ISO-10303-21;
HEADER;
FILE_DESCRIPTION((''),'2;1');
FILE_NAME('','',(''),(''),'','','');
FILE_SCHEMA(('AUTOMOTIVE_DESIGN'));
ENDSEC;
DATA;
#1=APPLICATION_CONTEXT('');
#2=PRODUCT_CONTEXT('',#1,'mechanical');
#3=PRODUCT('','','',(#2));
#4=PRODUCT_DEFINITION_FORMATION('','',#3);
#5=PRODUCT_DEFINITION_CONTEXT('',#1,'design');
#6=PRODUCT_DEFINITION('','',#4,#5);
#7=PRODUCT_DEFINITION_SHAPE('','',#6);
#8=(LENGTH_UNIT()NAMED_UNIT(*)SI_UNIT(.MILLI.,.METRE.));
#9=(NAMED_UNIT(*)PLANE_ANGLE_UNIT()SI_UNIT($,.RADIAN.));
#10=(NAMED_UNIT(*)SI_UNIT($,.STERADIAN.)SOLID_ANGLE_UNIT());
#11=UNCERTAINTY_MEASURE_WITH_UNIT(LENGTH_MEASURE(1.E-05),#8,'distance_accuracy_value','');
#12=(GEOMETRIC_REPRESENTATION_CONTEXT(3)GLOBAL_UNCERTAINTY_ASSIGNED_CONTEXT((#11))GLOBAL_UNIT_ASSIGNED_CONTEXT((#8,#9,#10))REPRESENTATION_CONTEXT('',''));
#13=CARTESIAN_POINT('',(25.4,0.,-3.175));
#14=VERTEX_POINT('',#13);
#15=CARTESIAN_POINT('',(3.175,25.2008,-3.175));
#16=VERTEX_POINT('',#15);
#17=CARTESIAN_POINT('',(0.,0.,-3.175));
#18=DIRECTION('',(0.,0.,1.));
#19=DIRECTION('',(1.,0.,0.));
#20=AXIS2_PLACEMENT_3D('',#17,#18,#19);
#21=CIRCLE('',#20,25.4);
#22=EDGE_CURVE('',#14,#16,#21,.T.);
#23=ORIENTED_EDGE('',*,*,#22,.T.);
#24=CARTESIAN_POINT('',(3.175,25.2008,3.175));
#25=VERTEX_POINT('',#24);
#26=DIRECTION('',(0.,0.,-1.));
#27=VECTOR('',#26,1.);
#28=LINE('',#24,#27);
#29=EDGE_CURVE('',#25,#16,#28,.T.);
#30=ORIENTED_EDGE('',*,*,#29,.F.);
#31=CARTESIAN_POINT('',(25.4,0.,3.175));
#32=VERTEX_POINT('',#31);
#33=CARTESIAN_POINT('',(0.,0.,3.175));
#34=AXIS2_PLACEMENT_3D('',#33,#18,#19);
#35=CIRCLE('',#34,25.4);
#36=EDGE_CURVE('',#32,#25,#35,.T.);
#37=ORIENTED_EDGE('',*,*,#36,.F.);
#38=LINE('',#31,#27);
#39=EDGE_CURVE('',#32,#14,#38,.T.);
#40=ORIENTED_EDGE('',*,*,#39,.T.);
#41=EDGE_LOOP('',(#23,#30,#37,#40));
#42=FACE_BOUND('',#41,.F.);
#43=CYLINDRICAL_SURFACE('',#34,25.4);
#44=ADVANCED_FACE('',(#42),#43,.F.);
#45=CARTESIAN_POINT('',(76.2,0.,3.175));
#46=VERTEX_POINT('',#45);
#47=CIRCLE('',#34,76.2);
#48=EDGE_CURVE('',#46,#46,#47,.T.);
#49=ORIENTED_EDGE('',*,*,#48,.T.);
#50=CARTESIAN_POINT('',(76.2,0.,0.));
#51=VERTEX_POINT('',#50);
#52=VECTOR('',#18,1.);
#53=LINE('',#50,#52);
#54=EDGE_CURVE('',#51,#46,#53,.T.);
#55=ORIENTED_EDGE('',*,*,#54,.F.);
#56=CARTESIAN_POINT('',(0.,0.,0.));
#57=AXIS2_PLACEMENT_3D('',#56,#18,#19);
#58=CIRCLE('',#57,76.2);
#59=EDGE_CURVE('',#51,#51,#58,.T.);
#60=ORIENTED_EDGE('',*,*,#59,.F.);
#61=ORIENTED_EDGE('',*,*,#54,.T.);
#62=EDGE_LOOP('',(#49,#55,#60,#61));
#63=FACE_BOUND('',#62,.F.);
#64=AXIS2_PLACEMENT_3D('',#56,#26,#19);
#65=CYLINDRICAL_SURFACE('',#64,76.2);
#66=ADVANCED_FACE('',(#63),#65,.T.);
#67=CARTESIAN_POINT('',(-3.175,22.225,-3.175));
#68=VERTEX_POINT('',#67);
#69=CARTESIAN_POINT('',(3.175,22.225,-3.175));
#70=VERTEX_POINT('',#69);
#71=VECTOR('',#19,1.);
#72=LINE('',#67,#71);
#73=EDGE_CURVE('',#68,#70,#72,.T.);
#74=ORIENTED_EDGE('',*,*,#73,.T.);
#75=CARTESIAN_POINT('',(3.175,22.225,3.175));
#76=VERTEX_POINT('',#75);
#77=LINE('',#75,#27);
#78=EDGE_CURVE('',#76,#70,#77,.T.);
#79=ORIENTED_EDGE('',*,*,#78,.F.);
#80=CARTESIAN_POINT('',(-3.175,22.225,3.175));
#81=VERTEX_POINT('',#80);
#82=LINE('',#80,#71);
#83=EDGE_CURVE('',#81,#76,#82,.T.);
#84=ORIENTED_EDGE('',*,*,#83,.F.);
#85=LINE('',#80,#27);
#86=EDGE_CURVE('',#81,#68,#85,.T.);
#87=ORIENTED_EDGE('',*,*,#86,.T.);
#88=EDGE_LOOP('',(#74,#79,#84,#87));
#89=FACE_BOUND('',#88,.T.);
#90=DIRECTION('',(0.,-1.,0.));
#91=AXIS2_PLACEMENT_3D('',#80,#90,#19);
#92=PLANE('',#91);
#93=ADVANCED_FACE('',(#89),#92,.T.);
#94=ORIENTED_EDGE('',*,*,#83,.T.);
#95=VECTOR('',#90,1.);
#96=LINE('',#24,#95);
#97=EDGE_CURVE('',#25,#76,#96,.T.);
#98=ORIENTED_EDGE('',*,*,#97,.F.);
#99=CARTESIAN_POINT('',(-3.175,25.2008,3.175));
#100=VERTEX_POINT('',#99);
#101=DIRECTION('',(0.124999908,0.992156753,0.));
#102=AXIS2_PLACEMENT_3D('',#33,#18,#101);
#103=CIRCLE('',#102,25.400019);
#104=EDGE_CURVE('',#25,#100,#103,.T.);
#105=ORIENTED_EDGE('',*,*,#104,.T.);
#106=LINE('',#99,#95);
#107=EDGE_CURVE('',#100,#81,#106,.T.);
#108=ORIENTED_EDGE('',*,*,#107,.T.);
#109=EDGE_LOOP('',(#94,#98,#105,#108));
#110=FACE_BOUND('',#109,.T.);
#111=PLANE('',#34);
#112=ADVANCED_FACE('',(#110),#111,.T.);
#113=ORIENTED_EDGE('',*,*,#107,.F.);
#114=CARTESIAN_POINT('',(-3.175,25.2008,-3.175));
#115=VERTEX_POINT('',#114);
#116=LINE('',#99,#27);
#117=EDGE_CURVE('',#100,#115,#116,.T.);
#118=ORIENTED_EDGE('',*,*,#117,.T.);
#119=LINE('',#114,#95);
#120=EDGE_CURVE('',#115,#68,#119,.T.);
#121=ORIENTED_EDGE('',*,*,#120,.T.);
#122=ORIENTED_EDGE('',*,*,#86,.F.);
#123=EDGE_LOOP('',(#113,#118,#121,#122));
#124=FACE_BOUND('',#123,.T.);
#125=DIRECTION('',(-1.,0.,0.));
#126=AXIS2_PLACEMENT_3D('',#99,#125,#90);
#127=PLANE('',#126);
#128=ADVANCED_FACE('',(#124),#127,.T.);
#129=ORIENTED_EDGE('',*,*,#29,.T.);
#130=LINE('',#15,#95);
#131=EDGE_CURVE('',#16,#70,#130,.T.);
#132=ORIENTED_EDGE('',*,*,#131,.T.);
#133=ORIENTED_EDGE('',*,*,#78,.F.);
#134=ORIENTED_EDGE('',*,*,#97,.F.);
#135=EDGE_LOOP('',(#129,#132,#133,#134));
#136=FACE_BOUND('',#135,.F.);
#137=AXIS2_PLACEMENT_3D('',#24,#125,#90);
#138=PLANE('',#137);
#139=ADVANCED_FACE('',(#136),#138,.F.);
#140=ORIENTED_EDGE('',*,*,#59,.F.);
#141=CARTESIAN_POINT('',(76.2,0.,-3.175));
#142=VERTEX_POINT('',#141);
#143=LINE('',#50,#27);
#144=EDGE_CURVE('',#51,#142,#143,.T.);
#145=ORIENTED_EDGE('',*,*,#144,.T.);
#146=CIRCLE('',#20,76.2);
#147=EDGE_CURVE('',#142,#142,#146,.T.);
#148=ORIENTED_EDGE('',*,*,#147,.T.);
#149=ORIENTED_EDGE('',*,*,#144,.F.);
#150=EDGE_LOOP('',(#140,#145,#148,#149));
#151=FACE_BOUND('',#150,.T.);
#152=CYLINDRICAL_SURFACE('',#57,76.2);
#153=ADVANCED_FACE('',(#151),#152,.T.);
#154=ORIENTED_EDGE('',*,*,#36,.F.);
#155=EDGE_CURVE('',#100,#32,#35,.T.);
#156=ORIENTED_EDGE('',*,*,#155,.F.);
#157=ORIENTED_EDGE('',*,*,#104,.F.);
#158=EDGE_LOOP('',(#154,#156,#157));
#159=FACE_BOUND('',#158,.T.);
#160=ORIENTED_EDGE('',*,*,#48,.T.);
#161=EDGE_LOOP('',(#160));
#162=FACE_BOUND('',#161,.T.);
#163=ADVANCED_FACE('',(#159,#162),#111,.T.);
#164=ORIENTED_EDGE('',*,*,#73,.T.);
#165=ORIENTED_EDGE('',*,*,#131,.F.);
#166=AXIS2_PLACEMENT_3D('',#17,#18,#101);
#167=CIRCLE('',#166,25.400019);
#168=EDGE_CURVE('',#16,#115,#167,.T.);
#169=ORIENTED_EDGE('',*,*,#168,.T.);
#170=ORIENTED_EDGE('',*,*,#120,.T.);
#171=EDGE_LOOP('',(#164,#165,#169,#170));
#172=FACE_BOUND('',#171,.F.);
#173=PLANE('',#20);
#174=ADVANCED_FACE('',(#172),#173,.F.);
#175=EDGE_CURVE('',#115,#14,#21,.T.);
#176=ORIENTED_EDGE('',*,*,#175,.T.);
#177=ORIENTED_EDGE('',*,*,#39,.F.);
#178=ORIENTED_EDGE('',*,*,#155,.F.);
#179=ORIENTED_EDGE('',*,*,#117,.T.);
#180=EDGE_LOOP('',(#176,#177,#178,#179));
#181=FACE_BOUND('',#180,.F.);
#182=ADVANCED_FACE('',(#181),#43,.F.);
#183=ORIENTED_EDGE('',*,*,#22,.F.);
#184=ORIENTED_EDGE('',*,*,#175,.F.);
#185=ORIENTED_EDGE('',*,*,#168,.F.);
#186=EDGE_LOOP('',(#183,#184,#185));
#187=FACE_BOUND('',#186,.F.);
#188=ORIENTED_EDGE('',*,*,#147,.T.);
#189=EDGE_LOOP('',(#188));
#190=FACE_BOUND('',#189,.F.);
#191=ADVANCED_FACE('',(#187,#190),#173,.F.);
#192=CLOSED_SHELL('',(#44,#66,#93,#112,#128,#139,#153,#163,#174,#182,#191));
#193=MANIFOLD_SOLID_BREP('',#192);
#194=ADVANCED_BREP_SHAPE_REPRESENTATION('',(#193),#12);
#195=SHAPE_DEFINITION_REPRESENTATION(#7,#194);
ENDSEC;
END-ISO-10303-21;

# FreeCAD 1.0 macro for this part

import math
import FreeCAD as App
import Part
import Sketcher
Q = App.Units.Quantity

doc = App.newDocument("Part")
body = doc.addObject("PartDesign::Body", "Body")

# Sketch on XY plane
sketch1 = body.newObject("Sketcher::SketchObject", "Sketch")
sketch1.AttachmentSupport = (doc.getObject("XY_Plane"), [""])
sketch1.MapMode = "FlatFace"
sketch1.addGeometry(Part.Circle(App.Vector(0, 0, 0), App.Vector(0, 0, 1), 76), False)
sketch1.addConstraint(Sketcher.Constraint("Coincident", 0, 3, -1, 1))
sketch1.addConstraint(Sketcher.Constraint("Diameter", 0, Q("6 in")))
pad1 = body.newObject("PartDesign::Pad", "Pad")
pad1.Profile = sketch1
pad1.Length = Q("0.25 in")
pad1.Midplane = True

# Sketch on XY plane
sketch2 = body.newObject("Sketcher::SketchObject", "Sketch001")
sketch2.AttachmentSupport = (doc.getObject("XY_Plane"), [""])
sketch2.MapMode = "FlatFace"
sketch2.AttachmentOffset = App.Placement(App.Vector(0, 0, 0.125 * 25.4), App.Rotation())
sketch2.addGeometry(Part.Circle(App.Vector(0, 0, 0), App.Vector(0, 0, 1), 25), False)
sketch2.addConstraint(Sketcher.Constraint("Coincident", 0, 3, -1, 1))
sketch2.addConstraint(Sketcher.Constraint("Diameter", 0, Q("2 in")))
pocket1 = body.newObject("PartDesign::Pocket", "Pocket")
pocket1.Profile = sketch2
pocket1.Type = "ThroughAll"

# Sketch on XY plane
sketch3 = body.newObject("Sketcher::SketchObject", "Sketch002")
sketch3.AttachmentSupport = (doc.getObject("XY_Plane"), [""])
sketch3.MapMode = "FlatFace"
sketch3.AttachmentOffset = App.Placement(App.Vector(0, 0, 0.125 * 25.4), App.Rotation())
sketch3.addGeometry(Part.LineSegment(App.Vector(3.2, 22.2, 0), App.Vector(3.2, 25.2, 0)), False)
sketch3.addGeometry(Part.ArcOfCircle(Part.Circle(App.Vector(0, 0, 0), App.Vector(0, 0, 1), 25.4), math.radians(82.82), math.radians(97.18)), False)
sketch3.addGeometry(Part.LineSegment(App.Vector(-3.2, 25.2, 0), App.Vector(-3.2, 22.2, 0)), False)
sketch3.addGeometry(Part.LineSegment(App.Vector(-3.2, 22.2, 0), App.Vector(3.2, 22.2, 0)), False)
sketch3.addConstraint(Sketcher.Constraint("Coincident", 0, 2, 1, 1))
sketch3.addConstraint(Sketcher.Constraint("Coincident", 1, 2, 2, 1))
sketch3.addConstraint(Sketcher.Constraint("Coincident", 2, 2, 3, 1))
sketch3.addConstraint(Sketcher.Constraint("Coincident", 3, 2, 0, 1))
sketch3.addConstraint(Sketcher.Constraint("Vertical", 0))
sketch3.addConstraint(Sketcher.Constraint("Vertical", 2))
sketch3.addConstraint(Sketcher.Constraint("Horizontal", 3))
sketch3.addConstraint(Sketcher.Constraint("Coincident", 1, 3, -1, 1))
sketch3.addConstraint(Sketcher.Constraint("Horizontal", 0, 2, 1, 2))
sketch3.addConstraint(Sketcher.Constraint("Radius", 1, Q("1 in")))
sketch3.addConstraint(Sketcher.Constraint("DistanceX", 3, 1, 3, 2, Q("0.25 in")))
sketch3.addConstraint(Sketcher.Constraint("DistanceY", -1, 1, 2, 2, Q("0.875 in")))
pad2 = body.newObject("PartDesign::Pad", "Pad001")
pad2.Profile = sketch3
pad2.Length = Q("0.25 in")
pad2.Reversed = True

doc.recompute()
